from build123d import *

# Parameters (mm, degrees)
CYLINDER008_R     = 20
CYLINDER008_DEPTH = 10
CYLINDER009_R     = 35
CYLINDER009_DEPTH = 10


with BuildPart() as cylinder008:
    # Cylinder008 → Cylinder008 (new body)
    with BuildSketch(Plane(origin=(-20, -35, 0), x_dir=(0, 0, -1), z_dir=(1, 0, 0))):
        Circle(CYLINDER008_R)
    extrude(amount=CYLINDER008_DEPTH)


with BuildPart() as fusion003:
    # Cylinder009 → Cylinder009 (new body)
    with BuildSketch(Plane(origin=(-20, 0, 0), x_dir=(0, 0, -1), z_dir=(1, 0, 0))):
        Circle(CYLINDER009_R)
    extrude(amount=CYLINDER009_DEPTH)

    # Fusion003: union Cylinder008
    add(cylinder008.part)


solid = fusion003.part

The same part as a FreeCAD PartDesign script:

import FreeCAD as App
import Part
import Sketcher
from FreeCAD import Vector
Q = App.Units.Quantity

doc = App.newDocument("Part")
body = doc.addObject("PartDesign::Body", "Body")

sketch1 = body.newObject("Sketcher::SketchObject", "Sketch")
sketch1.AttachmentSupport = (doc.getObject("YZ_Plane"), [""])
sketch1.MapMode = "FlatFace"
sketch1.AttachmentOffset = App.Placement(Vector(0, 0, -20), App.Rotation())
sketch1.addGeometry(Part.Circle(Vector(-35, 0, 0), Vector(0, 0, 1), 20), False)
sketch1.addConstraint([
    Sketcher.Constraint("PointOnObject", 0, 3, -1),
    Sketcher.Constraint("Diameter", 0, Q("40 mm")),
    Sketcher.Constraint("DistanceX", 0, 3, -1, 1, Q("35 mm")),
])
pad1 = body.newObject("PartDesign::Pad", "Pad")
pad1.Profile = sketch1
pad1.Length = 10
body2 = doc.addObject("PartDesign::Body", "Body001")

sketch2 = body2.newObject("Sketcher::SketchObject", "Sketch001")
sketch2.AttachmentSupport = (doc.getObject("YZ_Plane001"), [""])
sketch2.MapMode = "FlatFace"
sketch2.AttachmentOffset = App.Placement(Vector(0, 0, -20), App.Rotation())
sketch2.addGeometry(Part.Circle(Vector(0, 0, 0), Vector(0, 0, 1), 35), False)
sketch2.addConstraint([
    Sketcher.Constraint("Coincident", 0, 3, -1, 1),
    Sketcher.Constraint("Diameter", 0, Q("70 mm")),
])
pad2 = body2.newObject("PartDesign::Pad", "Pad001")
pad2.Profile = sketch2
pad2.Length = 10
doc.recompute()

boolean = body2.newObject("PartDesign::Boolean", "Boolean")
boolean.Type = "Fuse"
boolean.addObjects([body])

doc.recompute()
